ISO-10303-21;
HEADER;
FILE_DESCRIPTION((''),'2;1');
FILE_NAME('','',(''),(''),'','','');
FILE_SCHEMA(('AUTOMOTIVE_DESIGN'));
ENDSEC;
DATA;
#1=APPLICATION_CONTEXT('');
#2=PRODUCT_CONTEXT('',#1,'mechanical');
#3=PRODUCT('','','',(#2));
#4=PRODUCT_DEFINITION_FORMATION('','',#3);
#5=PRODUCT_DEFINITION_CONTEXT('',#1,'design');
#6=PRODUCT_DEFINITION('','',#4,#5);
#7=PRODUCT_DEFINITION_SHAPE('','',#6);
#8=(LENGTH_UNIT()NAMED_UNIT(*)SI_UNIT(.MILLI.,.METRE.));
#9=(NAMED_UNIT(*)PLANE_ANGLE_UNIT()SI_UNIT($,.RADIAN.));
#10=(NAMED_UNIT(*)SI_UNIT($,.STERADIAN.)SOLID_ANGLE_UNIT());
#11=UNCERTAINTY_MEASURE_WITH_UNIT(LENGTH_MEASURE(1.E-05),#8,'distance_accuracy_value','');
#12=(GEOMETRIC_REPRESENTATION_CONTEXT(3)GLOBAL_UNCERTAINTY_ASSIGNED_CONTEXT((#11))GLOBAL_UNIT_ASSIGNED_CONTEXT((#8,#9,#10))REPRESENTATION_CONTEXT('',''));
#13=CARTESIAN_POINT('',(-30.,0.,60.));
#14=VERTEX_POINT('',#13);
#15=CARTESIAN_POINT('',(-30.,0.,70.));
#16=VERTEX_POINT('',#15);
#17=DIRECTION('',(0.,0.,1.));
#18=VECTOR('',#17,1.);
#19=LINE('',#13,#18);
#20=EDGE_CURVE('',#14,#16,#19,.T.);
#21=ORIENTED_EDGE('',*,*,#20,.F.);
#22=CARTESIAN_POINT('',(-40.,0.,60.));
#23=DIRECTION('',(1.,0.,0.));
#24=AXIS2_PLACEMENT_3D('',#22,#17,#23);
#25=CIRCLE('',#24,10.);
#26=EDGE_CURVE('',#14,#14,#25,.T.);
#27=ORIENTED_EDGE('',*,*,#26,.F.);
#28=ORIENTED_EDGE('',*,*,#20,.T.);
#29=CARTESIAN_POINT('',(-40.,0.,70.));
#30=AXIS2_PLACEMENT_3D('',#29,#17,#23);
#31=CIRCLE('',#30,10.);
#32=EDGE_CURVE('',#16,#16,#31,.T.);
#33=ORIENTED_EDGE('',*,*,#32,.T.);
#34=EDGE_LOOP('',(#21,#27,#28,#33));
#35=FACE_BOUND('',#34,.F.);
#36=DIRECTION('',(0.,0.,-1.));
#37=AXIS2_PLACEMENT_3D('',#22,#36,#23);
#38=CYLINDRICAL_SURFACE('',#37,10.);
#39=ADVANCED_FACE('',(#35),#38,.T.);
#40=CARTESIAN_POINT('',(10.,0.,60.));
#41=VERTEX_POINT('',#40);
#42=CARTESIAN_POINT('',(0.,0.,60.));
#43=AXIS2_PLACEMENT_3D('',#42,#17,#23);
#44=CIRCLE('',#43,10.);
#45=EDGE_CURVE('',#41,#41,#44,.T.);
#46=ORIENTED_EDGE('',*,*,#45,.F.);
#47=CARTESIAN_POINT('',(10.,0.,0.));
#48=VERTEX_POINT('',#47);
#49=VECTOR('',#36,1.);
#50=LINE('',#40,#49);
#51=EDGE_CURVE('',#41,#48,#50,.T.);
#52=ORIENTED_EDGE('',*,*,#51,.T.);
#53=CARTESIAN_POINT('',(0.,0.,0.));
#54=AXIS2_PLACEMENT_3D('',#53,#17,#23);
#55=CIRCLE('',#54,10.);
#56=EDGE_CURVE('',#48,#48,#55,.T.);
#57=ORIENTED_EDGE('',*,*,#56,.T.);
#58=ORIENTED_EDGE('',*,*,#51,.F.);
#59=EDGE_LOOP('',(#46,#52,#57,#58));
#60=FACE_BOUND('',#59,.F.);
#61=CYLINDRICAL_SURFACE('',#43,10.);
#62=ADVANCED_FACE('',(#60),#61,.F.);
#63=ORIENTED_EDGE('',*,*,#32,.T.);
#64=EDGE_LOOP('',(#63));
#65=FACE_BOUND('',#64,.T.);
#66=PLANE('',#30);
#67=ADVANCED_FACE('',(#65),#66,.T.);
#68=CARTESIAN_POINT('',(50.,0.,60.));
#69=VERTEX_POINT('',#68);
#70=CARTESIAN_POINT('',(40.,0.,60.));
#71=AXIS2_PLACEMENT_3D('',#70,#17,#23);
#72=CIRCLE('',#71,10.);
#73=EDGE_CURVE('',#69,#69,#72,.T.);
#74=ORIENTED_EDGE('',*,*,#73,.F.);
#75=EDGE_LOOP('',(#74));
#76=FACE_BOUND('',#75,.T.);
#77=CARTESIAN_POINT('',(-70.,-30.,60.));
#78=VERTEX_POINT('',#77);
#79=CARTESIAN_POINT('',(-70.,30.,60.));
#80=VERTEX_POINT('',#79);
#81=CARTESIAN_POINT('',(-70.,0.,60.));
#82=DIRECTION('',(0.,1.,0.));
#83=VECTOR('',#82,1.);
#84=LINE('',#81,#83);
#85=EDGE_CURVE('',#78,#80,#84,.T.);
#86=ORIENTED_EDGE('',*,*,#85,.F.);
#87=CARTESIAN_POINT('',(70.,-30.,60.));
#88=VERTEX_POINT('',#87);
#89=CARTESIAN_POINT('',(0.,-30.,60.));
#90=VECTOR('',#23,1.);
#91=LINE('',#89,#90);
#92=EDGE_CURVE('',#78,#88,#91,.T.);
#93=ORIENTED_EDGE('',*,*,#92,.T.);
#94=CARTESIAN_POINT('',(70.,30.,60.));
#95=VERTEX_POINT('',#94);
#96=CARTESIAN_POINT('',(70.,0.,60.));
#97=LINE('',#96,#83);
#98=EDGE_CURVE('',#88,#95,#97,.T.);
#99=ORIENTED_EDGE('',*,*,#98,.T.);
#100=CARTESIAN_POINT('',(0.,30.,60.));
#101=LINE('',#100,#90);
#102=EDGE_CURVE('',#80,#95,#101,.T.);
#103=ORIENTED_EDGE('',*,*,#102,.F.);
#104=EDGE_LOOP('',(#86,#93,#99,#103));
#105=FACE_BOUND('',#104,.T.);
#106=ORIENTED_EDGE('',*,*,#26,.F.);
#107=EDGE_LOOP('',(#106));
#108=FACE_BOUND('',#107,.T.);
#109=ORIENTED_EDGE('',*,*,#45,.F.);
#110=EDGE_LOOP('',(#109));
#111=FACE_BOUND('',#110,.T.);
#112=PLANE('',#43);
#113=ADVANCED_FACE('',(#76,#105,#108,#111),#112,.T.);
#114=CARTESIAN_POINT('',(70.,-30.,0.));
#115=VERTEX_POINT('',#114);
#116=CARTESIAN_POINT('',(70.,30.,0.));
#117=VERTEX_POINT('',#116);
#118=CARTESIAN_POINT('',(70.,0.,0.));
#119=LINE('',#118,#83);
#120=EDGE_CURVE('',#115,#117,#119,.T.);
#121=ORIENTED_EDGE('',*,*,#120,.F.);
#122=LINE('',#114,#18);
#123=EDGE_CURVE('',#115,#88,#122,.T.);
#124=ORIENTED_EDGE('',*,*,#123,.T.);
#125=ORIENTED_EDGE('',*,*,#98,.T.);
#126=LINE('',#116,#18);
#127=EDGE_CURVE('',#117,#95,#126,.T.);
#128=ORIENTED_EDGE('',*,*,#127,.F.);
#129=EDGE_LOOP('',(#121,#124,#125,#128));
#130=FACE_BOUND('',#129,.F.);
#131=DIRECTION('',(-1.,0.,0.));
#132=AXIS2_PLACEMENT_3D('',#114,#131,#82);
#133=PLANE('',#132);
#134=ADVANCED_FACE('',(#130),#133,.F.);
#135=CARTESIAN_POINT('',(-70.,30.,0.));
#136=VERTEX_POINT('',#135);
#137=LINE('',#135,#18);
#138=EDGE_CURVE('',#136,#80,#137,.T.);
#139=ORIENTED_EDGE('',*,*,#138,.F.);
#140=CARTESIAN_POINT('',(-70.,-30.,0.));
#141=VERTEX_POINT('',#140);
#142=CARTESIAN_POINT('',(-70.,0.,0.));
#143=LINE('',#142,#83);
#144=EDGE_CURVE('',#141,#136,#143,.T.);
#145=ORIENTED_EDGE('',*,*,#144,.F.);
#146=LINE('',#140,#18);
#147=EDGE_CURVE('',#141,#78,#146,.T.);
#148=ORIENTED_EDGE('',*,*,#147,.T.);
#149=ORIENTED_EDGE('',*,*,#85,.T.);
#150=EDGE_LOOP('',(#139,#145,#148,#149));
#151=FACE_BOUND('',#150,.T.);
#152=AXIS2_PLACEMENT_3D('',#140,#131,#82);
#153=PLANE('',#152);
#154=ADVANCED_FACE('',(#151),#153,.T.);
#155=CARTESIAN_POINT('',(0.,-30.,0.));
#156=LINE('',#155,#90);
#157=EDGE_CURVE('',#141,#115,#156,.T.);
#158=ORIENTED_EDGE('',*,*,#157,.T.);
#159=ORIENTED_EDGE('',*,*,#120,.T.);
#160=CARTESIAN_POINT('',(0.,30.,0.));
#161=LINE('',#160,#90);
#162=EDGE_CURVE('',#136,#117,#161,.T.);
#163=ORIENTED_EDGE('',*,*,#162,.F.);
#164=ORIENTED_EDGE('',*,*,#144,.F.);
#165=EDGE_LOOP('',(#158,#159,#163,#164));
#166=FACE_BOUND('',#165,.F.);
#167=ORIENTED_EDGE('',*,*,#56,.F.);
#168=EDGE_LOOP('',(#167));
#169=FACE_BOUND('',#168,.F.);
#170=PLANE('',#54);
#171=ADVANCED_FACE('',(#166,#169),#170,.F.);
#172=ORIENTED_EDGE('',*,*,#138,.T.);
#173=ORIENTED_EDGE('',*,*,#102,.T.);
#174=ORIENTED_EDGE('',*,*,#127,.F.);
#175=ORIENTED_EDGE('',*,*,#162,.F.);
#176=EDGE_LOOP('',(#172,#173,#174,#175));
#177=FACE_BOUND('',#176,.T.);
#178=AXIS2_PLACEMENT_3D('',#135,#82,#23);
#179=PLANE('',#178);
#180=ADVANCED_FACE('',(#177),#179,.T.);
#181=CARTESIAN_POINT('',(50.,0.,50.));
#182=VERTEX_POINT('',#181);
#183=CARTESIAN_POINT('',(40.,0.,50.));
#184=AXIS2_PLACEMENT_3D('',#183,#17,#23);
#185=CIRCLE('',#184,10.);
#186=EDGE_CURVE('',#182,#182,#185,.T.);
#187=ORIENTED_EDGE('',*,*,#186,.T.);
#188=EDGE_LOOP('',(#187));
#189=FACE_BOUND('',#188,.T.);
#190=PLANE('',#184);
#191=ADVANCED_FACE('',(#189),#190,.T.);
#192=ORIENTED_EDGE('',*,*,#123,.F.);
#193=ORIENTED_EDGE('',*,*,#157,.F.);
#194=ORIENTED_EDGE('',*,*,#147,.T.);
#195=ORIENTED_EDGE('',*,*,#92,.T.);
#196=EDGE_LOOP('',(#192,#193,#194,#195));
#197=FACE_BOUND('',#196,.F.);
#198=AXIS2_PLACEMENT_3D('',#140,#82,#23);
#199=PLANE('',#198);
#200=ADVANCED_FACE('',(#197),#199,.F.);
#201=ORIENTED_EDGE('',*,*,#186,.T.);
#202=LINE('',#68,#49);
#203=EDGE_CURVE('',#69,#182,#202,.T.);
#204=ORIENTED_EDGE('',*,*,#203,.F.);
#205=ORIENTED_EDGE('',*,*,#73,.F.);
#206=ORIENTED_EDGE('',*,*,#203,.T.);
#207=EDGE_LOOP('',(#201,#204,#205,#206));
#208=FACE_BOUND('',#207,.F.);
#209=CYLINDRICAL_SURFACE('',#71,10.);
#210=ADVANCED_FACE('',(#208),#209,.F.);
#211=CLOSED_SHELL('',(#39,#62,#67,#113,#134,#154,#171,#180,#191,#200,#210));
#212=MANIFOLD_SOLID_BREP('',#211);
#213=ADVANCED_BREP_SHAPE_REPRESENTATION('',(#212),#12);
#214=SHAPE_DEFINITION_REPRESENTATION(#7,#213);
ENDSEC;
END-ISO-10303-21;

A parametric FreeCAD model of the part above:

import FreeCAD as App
import Part
import Sketcher
from FreeCAD import Vector


def add_polygon(sketch, points):
    """Adds a closed chain of lines whose ends are joined by coincident constraints."""
    first, n = sketch.GeometryCount, len(points)
    for a, b in zip(points, points[1:] + points[:1]):
        sketch.addGeometry(Part.LineSegment(App.Vector(*a, 0), App.Vector(*b, 0)), False)
    for i in range(n):
        sketch.addConstraint(Sketcher.Constraint("Coincident", first + i, 2, first + (i + 1) % n, 1))

doc = App.newDocument("Part")
body = doc.addObject("PartDesign::Body", "Body")

sketch1 = body.newObject("Sketcher::SketchObject", "Sketch")
sketch1.AttachmentSupport = (doc.getObject("XY_Plane"), [""])
sketch1.MapMode = "FlatFace"
add_polygon(sketch1, [(-70, 30), (-70, -30), (70, -30), (70, 30)])
sketch1.addConstraint([
    Sketcher.Constraint("Vertical", 0),
    Sketcher.Constraint("Horizontal", 1),
    Sketcher.Constraint("Vertical", 2),
    Sketcher.Constraint("Horizontal", 3),
    Sketcher.Constraint("Symmetric", 0, 2, 2, 2, -1, 1),
    Sketcher.Constraint("DistanceX", 1, 1, 1, 2, 140.0),
    Sketcher.Constraint("DistanceY", 0, 2, 0, 1, 60.0),
])
pad1 = body.newObject("PartDesign::Pad", "Pad")
pad1.Profile = sketch1
pad1.Length = 60

sketch2 = body.newObject("Sketcher::SketchObject", "Sketch001")
sketch2.AttachmentSupport = (doc.getObject("XY_Plane"), [""])
sketch2.MapMode = "FlatFace"
sketch2.AttachmentOffset = App.Placement(Vector(0, 0, 60), App.Rotation())
sketch2.addGeometry(Part.Circle(Vector(-40, 0, 0), Vector(0, 0, 1), 10), False)
sketch2.addConstraint([
    Sketcher.Constraint("PointOnObject", 0, 3, -1),
    Sketcher.Constraint("Diameter", 0, 20.0),
    Sketcher.Constraint("DistanceX", 0, 3, -1, 1, 40.0),
])
pad2 = body.newObject("PartDesign::Pad", "Pad001")
pad2.Profile = sketch2
pad2.Length = 10

sketch3 = body.newObject("Sketcher::SketchObject", "Sketch002")
sketch3.AttachmentSupport = (doc.getObject("XY_Plane"), [""])
sketch3.MapMode = "FlatFace"
sketch3.AttachmentOffset = App.Placement(Vector(0, 0, 60), App.Rotation())
sketch3.addGeometry(Part.Circle(Vector(0, 0, 0), Vector(0, 0, 1), 10), False)
sketch3.addConstraint([
    Sketcher.Constraint("Coincident", 0, 3, -1, 1),
    Sketcher.Constraint("Diameter", 0, 20.0),
])
pocket1 = body.newObject("PartDesign::Pocket", "Pocket")
pocket1.Profile = sketch3
pocket1.Length = 114.6

sketch4 = body.newObject("Sketcher::SketchObject", "Sketch003")
sketch4.AttachmentSupport = (doc.getObject("XY_Plane"), [""])
sketch4.MapMode = "FlatFace"
sketch4.AttachmentOffset = App.Placement(Vector(0, 0, 60), App.Rotation())
sketch4.addGeometry(Part.Circle(Vector(40, 0, 0), Vector(0, 0, 1), 10), False)
sketch4.addConstraint([
    Sketcher.Constraint("PointOnObject", 0, 3, -1),
    Sketcher.Constraint("Diameter", 0, 20.0),
    Sketcher.Constraint("DistanceX", -1, 1, 0, 3, 40.0),
])
pocket2 = body.newObject("PartDesign::Pocket", "Pocket001")
pocket2.Profile = sketch4
pocket2.Length = 10

doc.recompute()
